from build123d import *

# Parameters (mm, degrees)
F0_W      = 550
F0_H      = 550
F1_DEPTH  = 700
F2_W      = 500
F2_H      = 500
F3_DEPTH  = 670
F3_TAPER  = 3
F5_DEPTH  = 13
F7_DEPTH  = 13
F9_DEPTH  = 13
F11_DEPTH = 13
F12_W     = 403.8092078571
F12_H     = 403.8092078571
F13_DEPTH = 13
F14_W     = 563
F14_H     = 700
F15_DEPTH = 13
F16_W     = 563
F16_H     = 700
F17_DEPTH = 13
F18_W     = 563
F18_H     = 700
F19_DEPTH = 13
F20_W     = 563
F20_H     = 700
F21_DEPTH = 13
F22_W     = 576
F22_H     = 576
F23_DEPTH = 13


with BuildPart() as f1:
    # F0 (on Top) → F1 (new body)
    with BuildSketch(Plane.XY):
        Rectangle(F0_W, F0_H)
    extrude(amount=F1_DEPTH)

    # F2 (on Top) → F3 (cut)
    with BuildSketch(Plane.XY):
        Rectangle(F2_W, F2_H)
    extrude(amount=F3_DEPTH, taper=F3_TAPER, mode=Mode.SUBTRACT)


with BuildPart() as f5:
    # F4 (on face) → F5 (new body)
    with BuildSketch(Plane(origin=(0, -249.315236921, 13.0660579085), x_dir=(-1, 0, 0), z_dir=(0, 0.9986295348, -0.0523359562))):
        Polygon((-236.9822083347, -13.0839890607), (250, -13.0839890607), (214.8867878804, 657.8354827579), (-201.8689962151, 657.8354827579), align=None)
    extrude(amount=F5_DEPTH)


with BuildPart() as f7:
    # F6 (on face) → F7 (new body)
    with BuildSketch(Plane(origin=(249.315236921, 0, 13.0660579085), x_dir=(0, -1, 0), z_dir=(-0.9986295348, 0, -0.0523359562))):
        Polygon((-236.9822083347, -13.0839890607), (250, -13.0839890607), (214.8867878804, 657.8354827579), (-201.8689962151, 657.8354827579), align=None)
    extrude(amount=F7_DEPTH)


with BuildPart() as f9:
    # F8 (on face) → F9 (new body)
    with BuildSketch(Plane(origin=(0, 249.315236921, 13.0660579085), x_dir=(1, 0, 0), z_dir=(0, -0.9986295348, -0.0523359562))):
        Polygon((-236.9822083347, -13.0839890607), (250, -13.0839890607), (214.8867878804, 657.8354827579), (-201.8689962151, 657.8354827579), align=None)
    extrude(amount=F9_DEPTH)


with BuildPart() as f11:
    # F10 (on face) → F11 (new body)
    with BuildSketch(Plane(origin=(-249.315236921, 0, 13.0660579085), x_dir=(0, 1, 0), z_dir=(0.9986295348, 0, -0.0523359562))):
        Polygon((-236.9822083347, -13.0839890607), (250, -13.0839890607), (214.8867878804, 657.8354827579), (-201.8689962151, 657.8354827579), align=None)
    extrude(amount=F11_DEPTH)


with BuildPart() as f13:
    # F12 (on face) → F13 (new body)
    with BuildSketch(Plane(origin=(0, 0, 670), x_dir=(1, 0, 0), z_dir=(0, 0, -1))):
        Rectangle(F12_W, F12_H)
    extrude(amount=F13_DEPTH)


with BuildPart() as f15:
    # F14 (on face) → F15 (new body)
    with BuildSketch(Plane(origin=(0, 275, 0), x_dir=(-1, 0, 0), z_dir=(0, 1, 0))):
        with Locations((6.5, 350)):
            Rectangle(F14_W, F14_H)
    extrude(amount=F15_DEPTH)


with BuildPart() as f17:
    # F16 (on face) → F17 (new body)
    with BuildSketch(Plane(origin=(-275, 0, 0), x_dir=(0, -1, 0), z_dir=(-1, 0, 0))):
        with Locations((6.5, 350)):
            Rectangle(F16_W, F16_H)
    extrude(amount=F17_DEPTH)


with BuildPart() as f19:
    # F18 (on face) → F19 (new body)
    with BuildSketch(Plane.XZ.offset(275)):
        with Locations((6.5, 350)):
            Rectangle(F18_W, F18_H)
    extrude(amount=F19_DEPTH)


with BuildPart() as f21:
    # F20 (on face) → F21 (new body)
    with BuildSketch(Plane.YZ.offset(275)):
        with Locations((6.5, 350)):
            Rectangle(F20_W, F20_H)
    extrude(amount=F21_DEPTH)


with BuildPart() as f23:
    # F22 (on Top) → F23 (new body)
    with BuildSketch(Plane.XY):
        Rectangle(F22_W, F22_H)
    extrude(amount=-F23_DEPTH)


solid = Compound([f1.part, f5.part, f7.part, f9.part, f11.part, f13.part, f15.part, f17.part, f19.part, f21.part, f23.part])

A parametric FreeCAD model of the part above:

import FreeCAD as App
import Part
import Sketcher
from FreeCAD import Vector

doc = App.newDocument("Part")
body = doc.addObject("PartDesign::Body", "Body")

# Sketch on XY plane
sketch1 = doc.addObject("Sketcher::SketchObject", "Sketch")
body.addObject(sketch1)
sketch1.AttachmentSupport = (doc.XY_Plane, [""])
sketch1.MapMode = "FlatFace"
sketch1.addGeometry(Part.LineSegment(Vector(-275, 275, 0), Vector(-275, -275, 0)), False)
sketch1.addGeometry(Part.LineSegment(Vector(-275, -275, 0), Vector(275, -275, 0)), False)
sketch1.addGeometry(Part.LineSegment(Vector(275, -275, 0), Vector(275, 275, 0)), False)
sketch1.addGeometry(Part.LineSegment(Vector(275, 275, 0), Vector(-275, 275, 0)), False)
sketch1.addConstraint(Sketcher.Constraint("Coincident", 0, 2, 1, 1))
sketch1.addConstraint(Sketcher.Constraint("Coincident", 1, 2, 2, 1))
sketch1.addConstraint(Sketcher.Constraint("Coincident", 2, 2, 3, 1))
sketch1.addConstraint(Sketcher.Constraint("Coincident", 3, 2, 0, 1))
sketch1.addConstraint(Sketcher.Constraint("Vertical", 0))
sketch1.addConstraint(Sketcher.Constraint("Horizontal", 1))
sketch1.addConstraint(Sketcher.Constraint("Vertical", 2))
sketch1.addConstraint(Sketcher.Constraint("Horizontal", 3))
sketch1.addConstraint(Sketcher.Constraint("Symmetric", 0, 2, 2, 2, -1, 1))
sketch1.addConstraint(Sketcher.Constraint("Equal", 3, 0))
sketch1.addConstraint(Sketcher.Constraint("DistanceX", 1, 1, 1, 2, 550.0))
pad1 = doc.addObject("PartDesign::Pad", "Pad")
body.addObject(pad1)
pad1.Profile = sketch1
pad1.Length = 700

# Sketch on XY plane
sketch2 = doc.addObject("Sketcher::SketchObject", "Sketch001")
body.addObject(sketch2)
sketch2.AttachmentSupport = (doc.XY_Plane, [""])
sketch2.MapMode = "FlatFace"
sketch2.addGeometry(Part.LineSegment(Vector(-250, 250, 0), Vector(-250, -250, 0)), False)
sketch2.addGeometry(Part.LineSegment(Vector(-250, -250, 0), Vector(250, -250, 0)), False)
sketch2.addGeometry(Part.LineSegment(Vector(250, -250, 0), Vector(250, 250, 0)), False)
sketch2.addGeometry(Part.LineSegment(Vector(250, 250, 0), Vector(-250, 250, 0)), False)
sketch2.addConstraint(Sketcher.Constraint("Coincident", 0, 2, 1, 1))
sketch2.addConstraint(Sketcher.Constraint("Coincident", 1, 2, 2, 1))
sketch2.addConstraint(Sketcher.Constraint("Coincident", 2, 2, 3, 1))
sketch2.addConstraint(Sketcher.Constraint("Coincident", 3, 2, 0, 1))
sketch2.addConstraint(Sketcher.Constraint("Vertical", 0))
sketch2.addConstraint(Sketcher.Constraint("Horizontal", 1))
sketch2.addConstraint(Sketcher.Constraint("Vertical", 2))
sketch2.addConstraint(Sketcher.Constraint("Horizontal", 3))
sketch2.addConstraint(Sketcher.Constraint("Symmetric", 0, 2, 2, 2, -1, 1))
sketch2.addConstraint(Sketcher.Constraint("Equal", 3, 0))
sketch2.addConstraint(Sketcher.Constraint("DistanceX", 1, 1, 1, 2, 500.0))
pocket1 = doc.addObject("PartDesign::Pocket", "Pocket")
body.addObject(pocket1)
pocket1.Profile = sketch2
pocket1.Length = 670
pocket1.Reversed = True
pocket1.TaperAngle = -3
body2 = doc.addObject("PartDesign::Body", "Body001")

# Sketch on an angled plane
sketch3 = doc.addObject("Sketcher::SketchObject", "Sketch002")
body2.addObject(sketch3)
sketch3.Placement = App.Placement(Vector(0, -249.315237, 13.066058), App.Rotation(Vector(-1, 0, 0), Vector(0, 0.052335956, 0.998629535), Vector(0, 0.998629535, -0.052335956), "ZXY"))
sketch3.addGeometry(Part.LineSegment(Vector(-236.982208, -13.083989, 0), Vector(250, -13.083989, 0)), False)
sketch3.addGeometry(Part.LineSegment(Vector(250, -13.083989, 0), Vector(214.886788, 657.835483, 0)), False)
sketch3.addGeometry(Part.LineSegment(Vector(214.886788, 657.835483, 0), Vector(-201.868996, 657.835483, 0)), False)
sketch3.addGeometry(Part.LineSegment(Vector(-201.868996, 657.835483, 0), Vector(-236.982208, -13.083989, 0)), False)
sketch3.addConstraint(Sketcher.Constraint("Coincident", 0, 2, 1, 1))
sketch3.addConstraint(Sketcher.Constraint("Coincident", 1, 2, 2, 1))
sketch3.addConstraint(Sketcher.Constraint("Coincident", 2, 2, 3, 1))
sketch3.addConstraint(Sketcher.Constraint("Coincident", 3, 2, 0, 1))
sketch3.addConstraint(Sketcher.Constraint("Horizontal", 0))
sketch3.addConstraint(Sketcher.Constraint("Horizontal", 2))
sketch3.addConstraint(Sketcher.Constraint("Equal", 1, 3))
sketch3.addConstraint(Sketcher.Constraint("DistanceX", -1, 1, 0, 2, 250.0))
sketch3.addConstraint(Sketcher.Constraint("DistanceX", 0, 1, 0, 2, 486.982208))
sketch3.addConstraint(Sketcher.Constraint("DistanceX", 2, 2, 2, 1, 416.755784))
sketch3.addConstraint(Sketcher.Constraint("DistanceY", 0, 2, -1, 1, 13.083989))
sketch3.addConstraint(Sketcher.Constraint("Distance", 1, 671.837686))
pad2 = doc.addObject("PartDesign::Pad", "Pad001")
body2.addObject(pad2)
pad2.Profile = sketch3
pad2.Length = 13
body3 = doc.addObject("PartDesign::Body", "Body002")

# Sketch on an angled plane
sketch4 = doc.addObject("Sketcher::SketchObject", "Sketch003")
body3.addObject(sketch4)
sketch4.Placement = App.Placement(Vector(249.315237, 0, 13.066058), App.Rotation(Vector(0, -1, 0), Vector(-0.052335956, 0, 0.998629535), Vector(-0.998629535, 0, -0.052335956), "ZXY"))
sketch4.addGeometry(Part.LineSegment(Vector(-236.982208, -13.083989, 0), Vector(250, -13.083989, 0)), False)
sketch4.addGeometry(Part.LineSegment(Vector(250, -13.083989, 0), Vector(214.886788, 657.835483, 0)), False)
sketch4.addGeometry(Part.LineSegment(Vector(214.886788, 657.835483, 0), Vector(-201.868996, 657.835483, 0)), False)
sketch4.addGeometry(Part.LineSegment(Vector(-201.868996, 657.835483, 0), Vector(-236.982208, -13.083989, 0)), False)
sketch4.addConstraint(Sketcher.Constraint("Coincident", 0, 2, 1, 1))
sketch4.addConstraint(Sketcher.Constraint("Coincident", 1, 2, 2, 1))
sketch4.addConstraint(Sketcher.Constraint("Coincident", 2, 2, 3, 1))
sketch4.addConstraint(Sketcher.Constraint("Coincident", 3, 2, 0, 1))
sketch4.addConstraint(Sketcher.Constraint("Horizontal", 0))
sketch4.addConstraint(Sketcher.Constraint("Horizontal", 2))
sketch4.addConstraint(Sketcher.Constraint("Equal", 1, 3))
sketch4.addConstraint(Sketcher.Constraint("DistanceX", -1, 1, 0, 2, 250.0))
sketch4.addConstraint(Sketcher.Constraint("DistanceX", 0, 1, 0, 2, 486.982208))
sketch4.addConstraint(Sketcher.Constraint("DistanceX", 2, 2, 2, 1, 416.755784))
sketch4.addConstraint(Sketcher.Constraint("DistanceY", 0, 2, -1, 1, 13.083989))
sketch4.addConstraint(Sketcher.Constraint("Distance", 1, 671.837686))
pad3 = doc.addObject("PartDesign::Pad", "Pad002")
body3.addObject(pad3)
pad3.Profile = sketch4
pad3.Length = 13
body4 = doc.addObject("PartDesign::Body", "Body003")

# Sketch on an angled plane
sketch5 = doc.addObject("Sketcher::SketchObject", "Sketch004")
body4.addObject(sketch5)
sketch5.Placement = App.Placement(Vector(0, 249.315237, 13.066058), App.Rotation(Vector(1, 0, 0), Vector(0, -0.052335956, 0.998629535), Vector(0, -0.998629535, -0.052335956), "ZXY"))
sketch5.addGeometry(Part.LineSegment(Vector(-236.982208, -13.083989, 0), Vector(250, -13.083989, 0)), False)
sketch5.addGeometry(Part.LineSegment(Vector(250, -13.083989, 0), Vector(214.886788, 657.835483, 0)), False)
sketch5.addGeometry(Part.LineSegment(Vector(214.886788, 657.835483, 0), Vector(-201.868996, 657.835483, 0)), False)
sketch5.addGeometry(Part.LineSegment(Vector(-201.868996, 657.835483, 0), Vector(-236.982208, -13.083989, 0)), False)
sketch5.addConstraint(Sketcher.Constraint("Coincident", 0, 2, 1, 1))
sketch5.addConstraint(Sketcher.Constraint("Coincident", 1, 2, 2, 1))
sketch5.addConstraint(Sketcher.Constraint("Coincident", 2, 2, 3, 1))
sketch5.addConstraint(Sketcher.Constraint("Coincident", 3, 2, 0, 1))
sketch5.addConstraint(Sketcher.Constraint("Horizontal", 0))
sketch5.addConstraint(Sketcher.Constraint("Horizontal", 2))
sketch5.addConstraint(Sketcher.Constraint("Equal", 1, 3))
sketch5.addConstraint(Sketcher.Constraint("DistanceX", -1, 1, 0, 2, 250.0))
sketch5.addConstraint(Sketcher.Constraint("DistanceX", 0, 1, 0, 2, 486.982208))
sketch5.addConstraint(Sketcher.Constraint("DistanceX", 2, 2, 2, 1, 416.755784))
sketch5.addConstraint(Sketcher.Constraint("DistanceY", 0, 2, -1, 1, 13.083989))
sketch5.addConstraint(Sketcher.Constraint("Distance", 1, 671.837686))
pad4 = doc.addObject("PartDesign::Pad", "Pad003")
body4.addObject(pad4)
pad4.Profile = sketch5
pad4.Length = 13
body5 = doc.addObject("PartDesign::Body", "Body004")

# Sketch on an angled plane
sketch6 = doc.addObject("Sketcher::SketchObject", "Sketch005")
body5.addObject(sketch6)
sketch6.Placement = App.Placement(Vector(-249.315237, 0, 13.066058), App.Rotation(Vector(0, 1, 0), Vector(0.052335956, 0, 0.998629535), Vector(0.998629535, 0, -0.052335956), "ZXY"))
sketch6.addGeometry(Part.LineSegment(Vector(-236.982208, -13.083989, 0), Vector(250, -13.083989, 0)), False)
sketch6.addGeometry(Part.LineSegment(Vector(250, -13.083989, 0), Vector(214.886788, 657.835483, 0)), False)
sketch6.addGeometry(Part.LineSegment(Vector(214.886788, 657.835483, 0), Vector(-201.868996, 657.835483, 0)), False)
sketch6.addGeometry(Part.LineSegment(Vector(-201.868996, 657.835483, 0), Vector(-236.982208, -13.083989, 0)), False)
sketch6.addConstraint(Sketcher.Constraint("Coincident", 0, 2, 1, 1))
sketch6.addConstraint(Sketcher.Constraint("Coincident", 1, 2, 2, 1))
sketch6.addConstraint(Sketcher.Constraint("Coincident", 2, 2, 3, 1))
sketch6.addConstraint(Sketcher.Constraint("Coincident", 3, 2, 0, 1))
sketch6.addConstraint(Sketcher.Constraint("Horizontal", 0))
sketch6.addConstraint(Sketcher.Constraint("Horizontal", 2))
sketch6.addConstraint(Sketcher.Constraint("Equal", 1, 3))
sketch6.addConstraint(Sketcher.Constraint("DistanceX", -1, 1, 0, 2, 250.0))
sketch6.addConstraint(Sketcher.Constraint("DistanceX", 0, 1, 0, 2, 486.982208))
sketch6.addConstraint(Sketcher.Constraint("DistanceX", 2, 2, 2, 1, 416.755784))
sketch6.addConstraint(Sketcher.Constraint("DistanceY", 0, 2, -1, 1, 13.083989))
sketch6.addConstraint(Sketcher.Constraint("Distance", 1, 671.837686))
pad5 = doc.addObject("PartDesign::Pad", "Pad004")
body5.addObject(pad5)
pad5.Profile = sketch6
pad5.Length = 13
body6 = doc.addObject("PartDesign::Body", "Body005")

# Sketch on XY plane
sketch7 = doc.addObject("Sketcher::SketchObject", "Sketch006")
body6.addObject(sketch7)
sketch7.AttachmentSupport = (doc.getObject("XY_Plane005"), [""])
sketch7.MapMode = "FlatFace"
sketch7.AttachmentOffset = App.Placement(Vector(0, 0, 670), App.Rotation())
sketch7.addGeometry(Part.LineSegment(Vector(-201.904604, -201.904604, 0), Vector(-201.904604, 201.904604, 0)), False)
sketch7.addGeometry(Part.LineSegment(Vector(-201.904604, 201.904604, 0), Vector(201.904604, 201.904604, 0)), False)
sketch7.addGeometry(Part.LineSegment(Vector(201.904604, 201.904604, 0), Vector(201.904604, -201.904604, 0)), False)
sketch7.addGeometry(Part.LineSegment(Vector(201.904604, -201.904604, 0), Vector(-201.904604, -201.904604, 0)), False)
sketch7.addConstraint(Sketcher.Constraint("Coincident", 0, 2, 1, 1))
sketch7.addConstraint(Sketcher.Constraint("Coincident", 1, 2, 2, 1))
sketch7.addConstraint(Sketcher.Constraint("Coincident", 2, 2, 3, 1))
sketch7.addConstraint(Sketcher.Constraint("Coincident", 3, 2, 0, 1))
sketch7.addConstraint(Sketcher.Constraint("Vertical", 0))
sketch7.addConstraint(Sketcher.Constraint("Horizontal", 1))
sketch7.addConstraint(Sketcher.Constraint("Vertical", 2))
sketch7.addConstraint(Sketcher.Constraint("Horizontal", 3))
sketch7.addConstraint(Sketcher.Constraint("Symmetric", 0, 2, 2, 2, -1, 1))
sketch7.addConstraint(Sketcher.Constraint("Equal", 3, 0))
sketch7.addConstraint(Sketcher.Constraint("DistanceX", 1, 1, 1, 2, 403.809208))
pad6 = doc.addObject("PartDesign::Pad", "Pad005")
body6.addObject(pad6)
pad6.Profile = sketch7
pad6.Length = 13
pad6.Reversed = True
body7 = doc.addObject("PartDesign::Body", "Body006")

# Sketch on XZ plane
sketch8 = doc.addObject("Sketcher::SketchObject", "Sketch007")
body7.addObject(sketch8)
sketch8.AttachmentSupport = (doc.getObject("XZ_Plane006"), [""])
sketch8.MapMode = "FlatFace"
sketch8.AttachmentOffset = App.Placement(Vector(0, 0, -275), App.Rotation())
sketch8.addGeometry(Part.LineSegment(Vector(275, 700, 0), Vector(275, 0, 0)), False)
sketch8.addGeometry(Part.LineSegment(Vector(275, 0, 0), Vector(-288, 0, 0)), False)
sketch8.addGeometry(Part.LineSegment(Vector(-288, 0, 0), Vector(-288, 700, 0)), False)
sketch8.addGeometry(Part.LineSegment(Vector(-288, 700, 0), Vector(275, 700, 0)), False)
sketch8.addConstraint(Sketcher.Constraint("Coincident", 0, 2, 1, 1))
sketch8.addConstraint(Sketcher.Constraint("Coincident", 1, 2, 2, 1))
sketch8.addConstraint(Sketcher.Constraint("Coincident", 2, 2, 3, 1))
sketch8.addConstraint(Sketcher.Constraint("Coincident", 3, 2, 0, 1))
sketch8.addConstraint(Sketcher.Constraint("Vertical", 0))
sketch8.addConstraint(Sketcher.Constraint("Horizontal", 1))
sketch8.addConstraint(Sketcher.Constraint("Vertical", 2))
sketch8.addConstraint(Sketcher.Constraint("Horizontal", 3))
sketch8.addConstraint(Sketcher.Constraint("PointOnObject", 0, 2, -1))
sketch8.addConstraint(Sketcher.Constraint("DistanceX", 1, 2, 1, 1, 563.0))
sketch8.addConstraint(Sketcher.Constraint("DistanceY", 0, 2, 0, 1, 700.0))
sketch8.addConstraint(Sketcher.Constraint("DistanceX", -1, 1, 0, 2, 275.0))
pad7 = doc.addObject("PartDesign::Pad", "Pad006")
body7.addObject(pad7)
pad7.Profile = sketch8
pad7.Length = 13
pad7.Reversed = True
body8 = doc.addObject("PartDesign::Body", "Body007")

# Sketch on YZ plane
sketch9 = doc.addObject("Sketcher::SketchObject", "Sketch008")
body8.addObject(sketch9)
sketch9.AttachmentSupport = (doc.getObject("YZ_Plane007"), [""])
sketch9.MapMode = "FlatFace"
sketch9.AttachmentOffset = App.Placement(Vector(0, 0, -275), App.Rotation())
sketch9.addGeometry(Part.LineSegment(Vector(275, 700, 0), Vector(275, 0, 0)), False)
sketch9.addGeometry(Part.LineSegment(Vector(275, 0, 0), Vector(-288, 0, 0)), False)
sketch9.addGeometry(Part.LineSegment(Vector(-288, 0, 0), Vector(-288, 700, 0)), False)
sketch9.addGeometry(Part.LineSegment(Vector(-288, 700, 0), Vector(275, 700, 0)), False)
sketch9.addConstraint(Sketcher.Constraint("Coincident", 0, 2, 1, 1))
sketch9.addConstraint(Sketcher.Constraint("Coincident", 1, 2, 2, 1))
sketch9.addConstraint(Sketcher.Constraint("Coincident", 2, 2, 3, 1))
sketch9.addConstraint(Sketcher.Constraint("Coincident", 3, 2, 0, 1))
sketch9.addConstraint(Sketcher.Constraint("Vertical", 0))
sketch9.addConstraint(Sketcher.Constraint("Horizontal", 1))
sketch9.addConstraint(Sketcher.Constraint("Vertical", 2))
sketch9.addConstraint(Sketcher.Constraint("Horizontal", 3))
sketch9.addConstraint(Sketcher.Constraint("PointOnObject", 0, 2, -1))
sketch9.addConstraint(Sketcher.Constraint("DistanceX", 1, 2, 1, 1, 563.0))
sketch9.addConstraint(Sketcher.Constraint("DistanceY", 0, 2, 0, 1, 700.0))
sketch9.addConstraint(Sketcher.Constraint("DistanceX", -1, 1, 0, 2, 275.0))
pad8 = doc.addObject("PartDesign::Pad", "Pad007")
body8.addObject(pad8)
pad8.Profile = sketch9
pad8.Length = 13
pad8.Reversed = True
body9 = doc.addObject("PartDesign::Body", "Body008")

# Sketch on XZ plane
sketch10 = doc.addObject("Sketcher::SketchObject", "Sketch009")
body9.addObject(sketch10)
sketch10.AttachmentSupport = (doc.getObject("XZ_Plane008"), [""])
sketch10.MapMode = "FlatFace"
sketch10.AttachmentOffset = App.Placement(Vector(0, 0, 275), App.Rotation())
sketch10.addGeometry(Part.LineSegment(Vector(-275, 700, 0), Vector(-275, 0, 0)), False)
sketch10.addGeometry(Part.LineSegment(Vector(-275, 0, 0), Vector(288, 0, 0)), False)
sketch10.addGeometry(Part.LineSegment(Vector(288, 0, 0), Vector(288, 700, 0)), False)
sketch10.addGeometry(Part.LineSegment(Vector(288, 700, 0), Vector(-275, 700, 0)), False)
sketch10.addConstraint(Sketcher.Constraint("Coincident", 0, 2, 1, 1))
sketch10.addConstraint(Sketcher.Constraint("Coincident", 1, 2, 2, 1))
sketch10.addConstraint(Sketcher.Constraint("Coincident", 2, 2, 3, 1))
sketch10.addConstraint(Sketcher.Constraint("Coincident", 3, 2, 0, 1))
sketch10.addConstraint(Sketcher.Constraint("Vertical", 0))
sketch10.addConstraint(Sketcher.Constraint("Horizontal", 1))
sketch10.addConstraint(Sketcher.Constraint("Vertical", 2))
sketch10.addConstraint(Sketcher.Constraint("Horizontal", 3))
sketch10.addConstraint(Sketcher.Constraint("PointOnObject", 0, 2, -1))
sketch10.addConstraint(Sketcher.Constraint("DistanceX", 1, 1, 1, 2, 563.0))
sketch10.addConstraint(Sketcher.Constraint("DistanceY", 0, 2, 0, 1, 700.0))
sketch10.addConstraint(Sketcher.Constraint("DistanceX", 0, 2, -1, 1, 275.0))
pad9 = doc.addObject("PartDesign::Pad", "Pad008")
body9.addObject(pad9)
pad9.Profile = sketch10
pad9.Length = 13
body10 = doc.addObject("PartDesign::Body", "Body009")

# Sketch on YZ plane
sketch11 = doc.addObject("Sketcher::SketchObject", "Sketch010")
body10.addObject(sketch11)
sketch11.AttachmentSupport = (doc.getObject("YZ_Plane009"), [""])
sketch11.MapMode = "FlatFace"
sketch11.AttachmentOffset = App.Placement(Vector(0, 0, 275), App.Rotation())
sketch11.addGeometry(Part.LineSegment(Vector(-275, 700, 0), Vector(-275, 0, 0)), False)
sketch11.addGeometry(Part.LineSegment(Vector(-275, 0, 0), Vector(288, 0, 0)), False)
sketch11.addGeometry(Part.LineSegment(Vector(288, 0, 0), Vector(288, 700, 0)), False)
sketch11.addGeometry(Part.LineSegment(Vector(288, 700, 0), Vector(-275, 700, 0)), False)
sketch11.addConstraint(Sketcher.Constraint("Coincident", 0, 2, 1, 1))
sketch11.addConstraint(Sketcher.Constraint("Coincident", 1, 2, 2, 1))
sketch11.addConstraint(Sketcher.Constraint("Coincident", 2, 2, 3, 1))
sketch11.addConstraint(Sketcher.Constraint("Coincident", 3, 2, 0, 1))
sketch11.addConstraint(Sketcher.Constraint("Vertical", 0))
sketch11.addConstraint(Sketcher.Constraint("Horizontal", 1))
sketch11.addConstraint(Sketcher.Constraint("Vertical", 2))
sketch11.addConstraint(Sketcher.Constraint("Horizontal", 3))
sketch11.addConstraint(Sketcher.Constraint("PointOnObject", 0, 2, -1))
sketch11.addConstraint(Sketcher.Constraint("DistanceX", 1, 1, 1, 2, 563.0))
sketch11.addConstraint(Sketcher.Constraint("DistanceY", 0, 2, 0, 1, 700.0))
sketch11.addConstraint(Sketcher.Constraint("DistanceX", 0, 2, -1, 1, 275.0))
pad10 = doc.addObject("PartDesign::Pad", "Pad009")
body10.addObject(pad10)
pad10.Profile = sketch11
pad10.Length = 13
body11 = doc.addObject("PartDesign::Body", "Body010")

# Sketch on XY plane
sketch12 = doc.addObject("Sketcher::SketchObject", "Sketch011")
body11.addObject(sketch12)
sketch12.AttachmentSupport = (doc.getObject("XY_Plane010"), [""])
sketch12.MapMode = "FlatFace"
sketch12.addGeometry(Part.LineSegment(Vector(-288, 288, 0), Vector(-288, -288, 0)), False)
sketch12.addGeometry(Part.LineSegment(Vector(-288, -288, 0), Vector(288, -288, 0)), False)
sketch12.addGeometry(Part.LineSegment(Vector(288, -288, 0), Vector(288, 288, 0)), False)
sketch12.addGeometry(Part.LineSegment(Vector(288, 288, 0), Vector(-288, 288, 0)), False)
sketch12.addConstraint(Sketcher.Constraint("Coincident", 0, 2, 1, 1))
sketch12.addConstraint(Sketcher.Constraint("Coincident", 1, 2, 2, 1))
sketch12.addConstraint(Sketcher.Constraint("Coincident", 2, 2, 3, 1))
sketch12.addConstraint(Sketcher.Constraint("Coincident", 3, 2, 0, 1))
sketch12.addConstraint(Sketcher.Constraint("Vertical", 0))
sketch12.addConstraint(Sketcher.Constraint("Horizontal", 1))
sketch12.addConstraint(Sketcher.Constraint("Vertical", 2))
sketch12.addConstraint(Sketcher.Constraint("Horizontal", 3))
sketch12.addConstraint(Sketcher.Constraint("Symmetric", 0, 2, 2, 2, -1, 1))
sketch12.addConstraint(Sketcher.Constraint("Equal", 3, 0))
sketch12.addConstraint(Sketcher.Constraint("DistanceX", 1, 1, 1, 2, 576.0))
pad11 = doc.addObject("PartDesign::Pad", "Pad010")
body11.addObject(pad11)
pad11.Profile = sketch12
pad11.Length = 13
pad11.Reversed = True

doc.recompute()
